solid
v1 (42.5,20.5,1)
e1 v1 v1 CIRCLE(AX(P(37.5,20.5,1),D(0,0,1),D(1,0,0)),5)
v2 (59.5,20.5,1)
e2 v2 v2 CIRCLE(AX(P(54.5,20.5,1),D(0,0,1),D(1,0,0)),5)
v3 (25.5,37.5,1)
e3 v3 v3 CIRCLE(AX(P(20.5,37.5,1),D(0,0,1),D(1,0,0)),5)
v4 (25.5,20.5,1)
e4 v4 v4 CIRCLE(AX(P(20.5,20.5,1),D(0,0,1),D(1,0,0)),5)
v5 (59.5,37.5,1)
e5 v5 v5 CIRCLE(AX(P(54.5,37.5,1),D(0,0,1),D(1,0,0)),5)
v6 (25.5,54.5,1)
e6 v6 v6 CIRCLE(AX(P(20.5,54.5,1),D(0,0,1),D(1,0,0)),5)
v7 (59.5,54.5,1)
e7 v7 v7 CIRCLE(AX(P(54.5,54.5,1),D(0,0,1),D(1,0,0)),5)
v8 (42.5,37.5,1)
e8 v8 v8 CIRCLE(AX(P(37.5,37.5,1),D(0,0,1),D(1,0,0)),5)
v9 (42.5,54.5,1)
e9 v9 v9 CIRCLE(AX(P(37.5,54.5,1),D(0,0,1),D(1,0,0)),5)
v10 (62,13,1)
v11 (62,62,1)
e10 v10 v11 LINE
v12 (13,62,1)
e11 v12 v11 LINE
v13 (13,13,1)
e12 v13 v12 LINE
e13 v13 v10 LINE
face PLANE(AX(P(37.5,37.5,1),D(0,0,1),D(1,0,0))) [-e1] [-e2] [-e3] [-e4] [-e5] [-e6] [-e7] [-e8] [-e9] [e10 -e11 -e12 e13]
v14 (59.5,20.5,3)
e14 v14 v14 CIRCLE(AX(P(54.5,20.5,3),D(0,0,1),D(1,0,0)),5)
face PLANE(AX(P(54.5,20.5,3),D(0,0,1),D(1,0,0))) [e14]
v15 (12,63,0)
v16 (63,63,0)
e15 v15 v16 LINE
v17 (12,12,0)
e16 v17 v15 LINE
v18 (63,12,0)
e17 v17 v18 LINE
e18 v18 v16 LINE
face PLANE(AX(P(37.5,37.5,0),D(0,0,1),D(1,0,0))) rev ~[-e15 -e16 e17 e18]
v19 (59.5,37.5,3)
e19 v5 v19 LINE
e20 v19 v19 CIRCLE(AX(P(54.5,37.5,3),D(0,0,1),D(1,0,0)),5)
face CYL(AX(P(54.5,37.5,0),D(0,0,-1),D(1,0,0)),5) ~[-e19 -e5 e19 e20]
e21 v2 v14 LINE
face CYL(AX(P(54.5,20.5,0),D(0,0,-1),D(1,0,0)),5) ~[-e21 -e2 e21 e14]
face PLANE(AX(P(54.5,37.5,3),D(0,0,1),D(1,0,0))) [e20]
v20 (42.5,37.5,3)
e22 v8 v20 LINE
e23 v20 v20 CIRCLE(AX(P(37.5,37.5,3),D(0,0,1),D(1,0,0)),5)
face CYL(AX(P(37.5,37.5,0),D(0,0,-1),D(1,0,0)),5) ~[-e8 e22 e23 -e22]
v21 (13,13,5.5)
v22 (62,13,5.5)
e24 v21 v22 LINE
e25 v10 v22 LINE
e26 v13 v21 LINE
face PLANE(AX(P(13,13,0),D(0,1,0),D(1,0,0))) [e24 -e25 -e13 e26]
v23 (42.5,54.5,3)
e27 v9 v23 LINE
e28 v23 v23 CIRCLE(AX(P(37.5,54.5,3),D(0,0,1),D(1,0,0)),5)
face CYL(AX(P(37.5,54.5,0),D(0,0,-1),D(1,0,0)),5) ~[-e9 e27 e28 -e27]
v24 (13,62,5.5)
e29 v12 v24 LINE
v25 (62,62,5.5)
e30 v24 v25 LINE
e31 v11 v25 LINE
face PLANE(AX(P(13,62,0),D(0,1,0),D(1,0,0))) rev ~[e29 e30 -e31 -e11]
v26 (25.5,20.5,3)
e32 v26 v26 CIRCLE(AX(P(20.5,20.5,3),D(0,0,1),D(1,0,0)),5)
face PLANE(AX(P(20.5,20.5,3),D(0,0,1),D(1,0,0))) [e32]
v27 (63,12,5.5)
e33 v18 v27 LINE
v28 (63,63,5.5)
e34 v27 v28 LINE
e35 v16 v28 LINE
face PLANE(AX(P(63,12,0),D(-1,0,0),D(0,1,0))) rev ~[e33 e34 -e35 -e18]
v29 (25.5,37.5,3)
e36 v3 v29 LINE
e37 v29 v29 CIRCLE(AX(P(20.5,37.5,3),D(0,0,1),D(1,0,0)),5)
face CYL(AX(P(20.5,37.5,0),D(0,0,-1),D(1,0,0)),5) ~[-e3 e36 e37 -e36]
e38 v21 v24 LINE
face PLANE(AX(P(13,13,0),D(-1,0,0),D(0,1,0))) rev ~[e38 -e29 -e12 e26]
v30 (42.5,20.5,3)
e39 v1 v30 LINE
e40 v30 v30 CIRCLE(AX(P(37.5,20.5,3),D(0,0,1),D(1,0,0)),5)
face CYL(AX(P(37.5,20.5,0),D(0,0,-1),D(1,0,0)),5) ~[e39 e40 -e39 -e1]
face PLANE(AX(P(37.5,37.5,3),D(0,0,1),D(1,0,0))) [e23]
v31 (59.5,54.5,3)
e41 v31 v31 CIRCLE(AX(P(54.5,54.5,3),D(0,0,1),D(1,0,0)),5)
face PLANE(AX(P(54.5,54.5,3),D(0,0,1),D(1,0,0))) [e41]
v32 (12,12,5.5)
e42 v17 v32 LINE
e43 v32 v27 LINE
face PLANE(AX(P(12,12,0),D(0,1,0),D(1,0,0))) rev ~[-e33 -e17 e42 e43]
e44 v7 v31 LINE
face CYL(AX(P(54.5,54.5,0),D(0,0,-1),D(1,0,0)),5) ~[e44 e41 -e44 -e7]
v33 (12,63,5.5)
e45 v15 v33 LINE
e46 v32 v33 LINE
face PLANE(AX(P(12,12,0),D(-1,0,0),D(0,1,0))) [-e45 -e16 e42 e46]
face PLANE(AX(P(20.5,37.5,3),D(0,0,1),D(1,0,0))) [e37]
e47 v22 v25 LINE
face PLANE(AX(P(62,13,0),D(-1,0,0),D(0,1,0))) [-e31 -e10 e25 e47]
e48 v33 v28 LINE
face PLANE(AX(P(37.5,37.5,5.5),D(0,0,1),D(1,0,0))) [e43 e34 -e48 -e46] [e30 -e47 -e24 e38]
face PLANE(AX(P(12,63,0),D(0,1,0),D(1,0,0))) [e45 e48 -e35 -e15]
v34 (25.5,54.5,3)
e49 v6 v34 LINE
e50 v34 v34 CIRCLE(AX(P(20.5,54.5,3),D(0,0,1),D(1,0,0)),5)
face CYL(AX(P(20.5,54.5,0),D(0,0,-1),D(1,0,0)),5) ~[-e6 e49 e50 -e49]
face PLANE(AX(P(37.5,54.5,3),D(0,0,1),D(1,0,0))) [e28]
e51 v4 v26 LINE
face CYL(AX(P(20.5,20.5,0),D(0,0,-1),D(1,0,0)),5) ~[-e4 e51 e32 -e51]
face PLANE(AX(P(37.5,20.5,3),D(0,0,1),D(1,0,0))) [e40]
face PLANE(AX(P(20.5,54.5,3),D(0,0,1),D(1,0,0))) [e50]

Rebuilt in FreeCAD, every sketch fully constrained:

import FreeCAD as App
import Part
import Sketcher
from FreeCAD import Vector
Q = App.Units.Quantity

doc = App.newDocument("Part")
body = doc.addObject("PartDesign::Body", "Body")

sketch1 = body.newObject("Sketcher::SketchObject", "Sketch")
sketch1.AttachmentSupport = (doc.getObject("XY_Plane"), [""])
sketch1.MapMode = "FlatFace"
sketch1.addGeometry(Part.Circle(Vector(20, 54, 0), Vector(0, 0, 1), 5), False)
sketch1.addConstraint(Sketcher.Constraint("Diameter", 0, Q("10 mm")))
sketch1.addConstraint(Sketcher.Constraint("DistanceX", -1, 1, 0, 3, Q("20.5 mm")))
sketch1.addConstraint(Sketcher.Constraint("DistanceY", -1, 1, 0, 3, Q("54.5 mm")))
pad1 = body.newObject("PartDesign::Pad", "Pad")
pad1.Profile = sketch1
pad1.Length = 3
body2 = doc.addObject("PartDesign::Body", "Body001")

sketch2 = body2.newObject("Sketcher::SketchObject", "Sketch001")
sketch2.AttachmentSupport = (doc.getObject("XY_Plane001"), [""])
sketch2.MapMode = "FlatFace"
sketch2.addGeometry(Part.Circle(Vector(38, 54, 0), Vector(0, 0, 1), 5), False)
sketch2.addConstraint(Sketcher.Constraint("Diameter", 0, Q("10 mm")))
sketch2.addConstraint(Sketcher.Constraint("DistanceX", -1, 1, 0, 3, Q("37.5 mm")))
sketch2.addConstraint(Sketcher.Constraint("DistanceY", -1, 1, 0, 3, Q("54.5 mm")))
pad2 = body2.newObject("PartDesign::Pad", "Pad001")
pad2.Profile = sketch2
pad2.Length = 3
body3 = doc.addObject("PartDesign::Body", "Body002")

sketch3 = body3.newObject("Sketcher::SketchObject", "Sketch002")
sketch3.AttachmentSupport = (doc.getObject("XY_Plane002"), [""])
sketch3.MapMode = "FlatFace"
sketch3.addGeometry(Part.Circle(Vector(54, 54, 0), Vector(0, 0, 1), 5), False)
sketch3.addConstraint(Sketcher.Constraint("Diameter", 0, Q("10 mm")))
sketch3.addConstraint(Sketcher.Constraint("DistanceX", -1, 1, 0, 3, Q("54.5 mm")))
sketch3.addConstraint(Sketcher.Constraint("DistanceY", -1, 1, 0, 3, Q("54.5 mm")))
pad3 = body3.newObject("PartDesign::Pad", "Pad002")
pad3.Profile = sketch3
pad3.Length = 3
body4 = doc.addObject("PartDesign::Body", "Body003")

sketch4 = body4.newObject("Sketcher::SketchObject", "Sketch003")
sketch4.AttachmentSupport = (doc.getObject("XY_Plane003"), [""])
sketch4.MapMode = "FlatFace"
sketch4.addGeometry(Part.Circle(Vector(54, 38, 0), Vector(0, 0, 1), 5), False)
sketch4.addConstraint(Sketcher.Constraint("Diameter", 0, Q("10 mm")))
sketch4.addConstraint(Sketcher.Constraint("DistanceX", -1, 1, 0, 3, Q("54.5 mm")))
sketch4.addConstraint(Sketcher.Constraint("DistanceY", -1, 1, 0, 3, Q("37.5 mm")))
pad4 = body4.newObject("PartDesign::Pad", "Pad003")
pad4.Profile = sketch4
pad4.Length = 3
body5 = doc.addObject("PartDesign::Body", "Body004")

sketch5 = body5.newObject("Sketcher::SketchObject", "Sketch004")
sketch5.AttachmentSupport = (doc.getObject("XY_Plane004"), [""])
sketch5.MapMode = "FlatFace"
sketch5.addGeometry(Part.Circle(Vector(38, 38, 0), Vector(0, 0, 1), 5), False)
sketch5.addConstraint(Sketcher.Constraint("Diameter", 0, Q("10 mm")))
sketch5.addConstraint(Sketcher.Constraint("DistanceX", -1, 1, 0, 3, Q("37.5 mm")))
sketch5.addConstraint(Sketcher.Constraint("DistanceY", -1, 1, 0, 3, Q("37.5 mm")))
pad5 = body5.newObject("PartDesign::Pad", "Pad004")
pad5.Profile = sketch5
pad5.Length = 3
body6 = doc.addObject("PartDesign::Body", "Body005")

sketch6 = body6.newObject("Sketcher::SketchObject", "Sketch005")
sketch6.AttachmentSupport = (doc.getObject("XY_Plane005"), [""])
sketch6.MapMode = "FlatFace"
sketch6.addGeometry(Part.Circle(Vector(20, 38, 0), Vector(0, 0, 1), 5), False)
sketch6.addConstraint(Sketcher.Constraint("Diameter", 0, Q("10 mm")))
sketch6.addConstraint(Sketcher.Constraint("DistanceX", -1, 1, 0, 3, Q("20.5 mm")))
sketch6.addConstraint(Sketcher.Constraint("DistanceY", -1, 1, 0, 3, Q("37.5 mm")))
pad6 = body6.newObject("PartDesign::Pad", "Pad005")
pad6.Profile = sketch6
pad6.Length = 3
body7 = doc.addObject("PartDesign::Body", "Body006")

sketch7 = body7.newObject("Sketcher::SketchObject", "Sketch006")
sketch7.AttachmentSupport = (doc.getObject("XY_Plane006"), [""])
sketch7.MapMode = "FlatFace"
sketch7.addGeometry(Part.Circle(Vector(20, 20, 0), Vector(0, 0, 1), 5), False)
sketch7.addConstraint(Sketcher.Constraint("Diameter", 0, Q("10 mm")))
sketch7.addConstraint(Sketcher.Constraint("DistanceX", -1, 1, 0, 3, Q("20.5 mm")))
sketch7.addConstraint(Sketcher.Constraint("DistanceY", -1, 1, 0, 3, Q("20.5 mm")))
pad7 = body7.newObject("PartDesign::Pad", "Pad006")
pad7.Profile = sketch7
pad7.Length = 3
body8 = doc.addObject("PartDesign::Body", "Body007")

sketch8 = body8.newObject("Sketcher::SketchObject", "Sketch007")
sketch8.AttachmentSupport = (doc.getObject("XY_Plane007"), [""])
sketch8.MapMode = "FlatFace"
sketch8.addGeometry(Part.Circle(Vector(38, 20, 0), Vector(0, 0, 1), 5), False)
sketch8.addConstraint(Sketcher.Constraint("Diameter", 0, Q("10 mm")))
sketch8.addConstraint(Sketcher.Constraint("DistanceX", -1, 1, 0, 3, Q("37.5 mm")))
sketch8.addConstraint(Sketcher.Constraint("DistanceY", -1, 1, 0, 3, Q("20.5 mm")))
pad8 = body8.newObject("PartDesign::Pad", "Pad007")
pad8.Profile = sketch8
pad8.Length = 3
body9 = doc.addObject("PartDesign::Body", "Body008")

sketch9 = body9.newObject("Sketcher::SketchObject", "Sketch008")
sketch9.AttachmentSupport = (doc.getObject("XY_Plane008"), [""])
sketch9.MapMode = "FlatFace"
sketch9.addGeometry(Part.Circle(Vector(54, 20, 0), Vector(0, 0, 1), 5), False)
sketch9.addConstraint(Sketcher.Constraint("Diameter", 0, Q("10 mm")))
sketch9.addConstraint(Sketcher.Constraint("DistanceX", -1, 1, 0, 3, Q("54.5 mm")))
sketch9.addConstraint(Sketcher.Constraint("DistanceY", -1, 1, 0, 3, Q("20.5 mm")))
pad9 = body9.newObject("PartDesign::Pad", "Pad008")
pad9.Profile = sketch9
pad9.Length = 3
body.AllowCompound = True
doc.recompute()

boolean = body.newObject("PartDesign::Boolean", "Boolean")
boolean.Type = "Fuse"
boolean.addObjects([body2])
doc.recompute()

boolean2 = body.newObject("PartDesign::Boolean", "Boolean001")
boolean2.Type = "Fuse"
boolean2.addObjects([body3])
doc.recompute()

boolean3 = body.newObject("PartDesign::Boolean", "Boolean002")
boolean3.Type = "Fuse"
boolean3.addObjects([body4])
doc.recompute()

boolean4 = body.newObject("PartDesign::Boolean", "Boolean003")
boolean4.Type = "Fuse"
boolean4.addObjects([body5])
doc.recompute()

boolean5 = body.newObject("PartDesign::Boolean", "Boolean004")
boolean5.Type = "Fuse"
boolean5.addObjects([body6])
doc.recompute()

boolean6 = body.newObject("PartDesign::Boolean", "Boolean005")
boolean6.Type = "Fuse"
boolean6.addObjects([body7])
doc.recompute()

boolean7 = body.newObject("PartDesign::Boolean", "Boolean006")
boolean7.Type = "Fuse"
boolean7.addObjects([body8])
doc.recompute()

boolean8 = body.newObject("PartDesign::Boolean", "Boolean007")
boolean8.Type = "Fuse"
boolean8.addObjects([body9])

sketch10 = body.newObject("Sketcher::SketchObject", "Sketch009")
sketch10.AttachmentSupport = (doc.getObject("XY_Plane"), [""])
sketch10.MapMode = "FlatFace"
sketch10.addGeometry(Part.LineSegment(Vector(13, 62, 0), Vector(13, 13, 0)), False)
sketch10.addGeometry(Part.LineSegment(Vector(13, 13, 0), Vector(62, 13, 0)), False)
sketch10.addGeometry(Part.LineSegment(Vector(62, 13, 0), Vector(62, 62, 0)), False)
sketch10.addGeometry(Part.LineSegment(Vector(62, 62, 0), Vector(13, 62, 0)), False)
sketch10.addGeometry(Part.Circle(Vector(20, 20, 0), Vector(0, 0, 1), 5), False)
sketch10.addGeometry(Part.Circle(Vector(38, 20, 0), Vector(0, 0, 1), 5), False)
sketch10.addGeometry(Part.Circle(Vector(54, 20, 0), Vector(0, 0, 1), 5), False)
sketch10.addGeometry(Part.Circle(Vector(20, 38, 0), Vector(0, 0, 1), 5), False)
sketch10.addGeometry(Part.Circle(Vector(20, 54, 0), Vector(0, 0, 1), 5), False)
sketch10.addGeometry(Part.Circle(Vector(38, 38, 0), Vector(0, 0, 1), 5), False)
sketch10.addGeometry(Part.Circle(Vector(54, 38, 0), Vector(0, 0, 1), 5), False)
sketch10.addGeometry(Part.Circle(Vector(38, 54, 0), Vector(0, 0, 1), 5), False)
sketch10.addGeometry(Part.Circle(Vector(54, 54, 0), Vector(0, 0, 1), 5), False)
sketch10.addConstraint(Sketcher.Constraint("Coincident", 0, 2, 1, 1))
sketch10.addConstraint(Sketcher.Constraint("Coincident", 1, 2, 2, 1))
sketch10.addConstraint(Sketcher.Constraint("Coincident", 2, 2, 3, 1))
sketch10.addConstraint(Sketcher.Constraint("Coincident", 3, 2, 0, 1))
sketch10.addConstraint(Sketcher.Constraint("Vertical", 0))
sketch10.addConstraint(Sketcher.Constraint("Horizontal", 1))
sketch10.addConstraint(Sketcher.Constraint("Vertical", 2))
sketch10.addConstraint(Sketcher.Constraint("Horizontal", 3))
sketch10.addConstraint(Sketcher.Constraint("Equal", 4, 5))
sketch10.addConstraint(Sketcher.Constraint("Equal", 5, 6))
sketch10.addConstraint(Sketcher.Constraint("Equal", 6, 7))
sketch10.addConstraint(Sketcher.Constraint("Equal", 7, 8))
sketch10.addConstraint(Sketcher.Constraint("Equal", 8, 9))
sketch10.addConstraint(Sketcher.Constraint("Equal", 9, 10))
sketch10.addConstraint(Sketcher.Constraint("Equal", 10, 11))
sketch10.addConstraint(Sketcher.Constraint("Equal", 11, 12))
sketch10.addConstraint(Sketcher.Constraint("Horizontal", 4, 3, 5, 3))
sketch10.addConstraint(Sketcher.Constraint("Horizontal", 5, 3, 6, 3))
sketch10.addConstraint(Sketcher.Constraint("Horizontal", 7, 3, 9, 3))
sketch10.addConstraint(Sketcher.Constraint("Horizontal", 9, 3, 10, 3))
sketch10.addConstraint(Sketcher.Constraint("Horizontal", 8, 3, 11, 3))
sketch10.addConstraint(Sketcher.Constraint("Horizontal", 11, 3, 12, 3))
sketch10.addConstraint(Sketcher.Constraint("Vertical", 4, 3, 7, 3))
sketch10.addConstraint(Sketcher.Constraint("Vertical", 7, 3, 8, 3))
sketch10.addConstraint(Sketcher.Constraint("Vertical", 5, 3, 9, 3))
sketch10.addConstraint(Sketcher.Constraint("Vertical", 6, 3, 10, 3))
sketch10.addConstraint(Sketcher.Constraint("Vertical", 9, 3, 11, 3))
sketch10.addConstraint(Sketcher.Constraint("Vertical", 10, 3, 12, 3))
sketch10.addConstraint(Sketcher.Constraint("Equal", 3, 0))
sketch10.addConstraint(Sketcher.Constraint("Diameter", 4, Q("10 mm")))
sketch10.addConstraint(Sketcher.Constraint("DistanceX", 1, 1, 1, 2, Q("49 mm")))
sketch10.addConstraint(Sketcher.Constraint("DistanceX", -1, 1, 0, 2, Q("13 mm")))
sketch10.addConstraint(Sketcher.Constraint("DistanceY", -1, 1, 0, 2, Q("13 mm")))
sketch10.addConstraint(Sketcher.Constraint("DistanceX", 4, 3, 5, 3, Q("17 mm")))
sketch10.addConstraint(Sketcher.Constraint("DistanceX", 5, 3, 6, 3, Q("17 mm")))
sketch10.addConstraint(Sketcher.Constraint("DistanceY", 4, 3, 7, 3, Q("17 mm")))
sketch10.addConstraint(Sketcher.Constraint("DistanceY", 7, 3, 8, 3, Q("17 mm")))
sketch10.addConstraint(Sketcher.Constraint("DistanceX", -1, 1, 4, 3, Q("20.5 mm")))
sketch10.addConstraint(Sketcher.Constraint("DistanceY", -1, 1, 4, 3, Q("20.5 mm")))
pad10 = body.newObject("PartDesign::Pad", "Pad009")
pad10.Profile = sketch10
pad10.Length = 1

sketch11 = body.newObject("Sketcher::SketchObject", "Sketch010")
sketch11.AttachmentSupport = (doc.getObject("XY_Plane"), [""])
sketch11.MapMode = "FlatFace"
sketch11.addGeometry(Part.LineSegment(Vector(12, 63, 0), Vector(12, 12, 0)), False)
sketch11.addGeometry(Part.LineSegment(Vector(12, 12, 0), Vector(63, 12, 0)), False)
sketch11.addGeometry(Part.LineSegment(Vector(63, 12, 0), Vector(63, 63, 0)), False)
sketch11.addGeometry(Part.LineSegment(Vector(63, 63, 0), Vector(12, 63, 0)), False)
sketch11.addGeometry(Part.LineSegment(Vector(62, 13, 0), Vector(13, 13, 0)), False)
sketch11.addGeometry(Part.LineSegment(Vector(13, 13, 0), Vector(13, 62, 0)), False)
sketch11.addGeometry(Part.LineSegment(Vector(13, 62, 0), Vector(62, 62, 0)), False)
sketch11.addGeometry(Part.LineSegment(Vector(62, 62, 0), Vector(62, 13, 0)), False)
sketch11.addConstraint(Sketcher.Constraint("Coincident", 0, 2, 1, 1))
sketch11.addConstraint(Sketcher.Constraint("Coincident", 1, 2, 2, 1))
sketch11.addConstraint(Sketcher.Constraint("Coincident", 2, 2, 3, 1))
sketch11.addConstraint(Sketcher.Constraint("Coincident", 3, 2, 0, 1))
sketch11.addConstraint(Sketcher.Constraint("Coincident", 4, 2, 5, 1))
sketch11.addConstraint(Sketcher.Constraint("Coincident", 5, 2, 6, 1))
sketch11.addConstraint(Sketcher.Constraint("Coincident", 6, 2, 7, 1))
sketch11.addConstraint(Sketcher.Constraint("Coincident", 7, 2, 4, 1))
sketch11.addConstraint(Sketcher.Constraint("Vertical", 0))
sketch11.addConstraint(Sketcher.Constraint("Horizontal", 1))
sketch11.addConstraint(Sketcher.Constraint("Vertical", 2))
sketch11.addConstraint(Sketcher.Constraint("Horizontal", 3))
sketch11.addConstraint(Sketcher.Constraint("Horizontal", 4))
sketch11.addConstraint(Sketcher.Constraint("Vertical", 5))
sketch11.addConstraint(Sketcher.Constraint("Horizontal", 6))
sketch11.addConstraint(Sketcher.Constraint("Vertical", 7))
sketch11.addConstraint(Sketcher.Constraint("Equal", 3, 0))
sketch11.addConstraint(Sketcher.Constraint("Equal", 6, 5))
sketch11.addConstraint(Sketcher.Constraint("DistanceX", 1, 1, 1, 2, Q("51 mm")))
sketch11.addConstraint(Sketcher.Constraint("DistanceX", 4, 2, 4, 1, Q("49 mm")))
sketch11.addConstraint(Sketcher.Constraint("DistanceX", -1, 1, 0, 2, Q("12 mm")))
sketch11.addConstraint(Sketcher.Constraint("DistanceY", -1, 1, 0, 2, Q("12 mm")))
sketch11.addConstraint(Sketcher.Constraint("DistanceX", -1, 1, 4, 2, Q("13 mm")))
sketch11.addConstraint(Sketcher.Constraint("DistanceY", -1, 1, 4, 2, Q("13 mm")))
pad11 = body.newObject("PartDesign::Pad", "Pad010")
pad11.Profile = sketch11
pad11.Length = 5.5

doc.recompute()
